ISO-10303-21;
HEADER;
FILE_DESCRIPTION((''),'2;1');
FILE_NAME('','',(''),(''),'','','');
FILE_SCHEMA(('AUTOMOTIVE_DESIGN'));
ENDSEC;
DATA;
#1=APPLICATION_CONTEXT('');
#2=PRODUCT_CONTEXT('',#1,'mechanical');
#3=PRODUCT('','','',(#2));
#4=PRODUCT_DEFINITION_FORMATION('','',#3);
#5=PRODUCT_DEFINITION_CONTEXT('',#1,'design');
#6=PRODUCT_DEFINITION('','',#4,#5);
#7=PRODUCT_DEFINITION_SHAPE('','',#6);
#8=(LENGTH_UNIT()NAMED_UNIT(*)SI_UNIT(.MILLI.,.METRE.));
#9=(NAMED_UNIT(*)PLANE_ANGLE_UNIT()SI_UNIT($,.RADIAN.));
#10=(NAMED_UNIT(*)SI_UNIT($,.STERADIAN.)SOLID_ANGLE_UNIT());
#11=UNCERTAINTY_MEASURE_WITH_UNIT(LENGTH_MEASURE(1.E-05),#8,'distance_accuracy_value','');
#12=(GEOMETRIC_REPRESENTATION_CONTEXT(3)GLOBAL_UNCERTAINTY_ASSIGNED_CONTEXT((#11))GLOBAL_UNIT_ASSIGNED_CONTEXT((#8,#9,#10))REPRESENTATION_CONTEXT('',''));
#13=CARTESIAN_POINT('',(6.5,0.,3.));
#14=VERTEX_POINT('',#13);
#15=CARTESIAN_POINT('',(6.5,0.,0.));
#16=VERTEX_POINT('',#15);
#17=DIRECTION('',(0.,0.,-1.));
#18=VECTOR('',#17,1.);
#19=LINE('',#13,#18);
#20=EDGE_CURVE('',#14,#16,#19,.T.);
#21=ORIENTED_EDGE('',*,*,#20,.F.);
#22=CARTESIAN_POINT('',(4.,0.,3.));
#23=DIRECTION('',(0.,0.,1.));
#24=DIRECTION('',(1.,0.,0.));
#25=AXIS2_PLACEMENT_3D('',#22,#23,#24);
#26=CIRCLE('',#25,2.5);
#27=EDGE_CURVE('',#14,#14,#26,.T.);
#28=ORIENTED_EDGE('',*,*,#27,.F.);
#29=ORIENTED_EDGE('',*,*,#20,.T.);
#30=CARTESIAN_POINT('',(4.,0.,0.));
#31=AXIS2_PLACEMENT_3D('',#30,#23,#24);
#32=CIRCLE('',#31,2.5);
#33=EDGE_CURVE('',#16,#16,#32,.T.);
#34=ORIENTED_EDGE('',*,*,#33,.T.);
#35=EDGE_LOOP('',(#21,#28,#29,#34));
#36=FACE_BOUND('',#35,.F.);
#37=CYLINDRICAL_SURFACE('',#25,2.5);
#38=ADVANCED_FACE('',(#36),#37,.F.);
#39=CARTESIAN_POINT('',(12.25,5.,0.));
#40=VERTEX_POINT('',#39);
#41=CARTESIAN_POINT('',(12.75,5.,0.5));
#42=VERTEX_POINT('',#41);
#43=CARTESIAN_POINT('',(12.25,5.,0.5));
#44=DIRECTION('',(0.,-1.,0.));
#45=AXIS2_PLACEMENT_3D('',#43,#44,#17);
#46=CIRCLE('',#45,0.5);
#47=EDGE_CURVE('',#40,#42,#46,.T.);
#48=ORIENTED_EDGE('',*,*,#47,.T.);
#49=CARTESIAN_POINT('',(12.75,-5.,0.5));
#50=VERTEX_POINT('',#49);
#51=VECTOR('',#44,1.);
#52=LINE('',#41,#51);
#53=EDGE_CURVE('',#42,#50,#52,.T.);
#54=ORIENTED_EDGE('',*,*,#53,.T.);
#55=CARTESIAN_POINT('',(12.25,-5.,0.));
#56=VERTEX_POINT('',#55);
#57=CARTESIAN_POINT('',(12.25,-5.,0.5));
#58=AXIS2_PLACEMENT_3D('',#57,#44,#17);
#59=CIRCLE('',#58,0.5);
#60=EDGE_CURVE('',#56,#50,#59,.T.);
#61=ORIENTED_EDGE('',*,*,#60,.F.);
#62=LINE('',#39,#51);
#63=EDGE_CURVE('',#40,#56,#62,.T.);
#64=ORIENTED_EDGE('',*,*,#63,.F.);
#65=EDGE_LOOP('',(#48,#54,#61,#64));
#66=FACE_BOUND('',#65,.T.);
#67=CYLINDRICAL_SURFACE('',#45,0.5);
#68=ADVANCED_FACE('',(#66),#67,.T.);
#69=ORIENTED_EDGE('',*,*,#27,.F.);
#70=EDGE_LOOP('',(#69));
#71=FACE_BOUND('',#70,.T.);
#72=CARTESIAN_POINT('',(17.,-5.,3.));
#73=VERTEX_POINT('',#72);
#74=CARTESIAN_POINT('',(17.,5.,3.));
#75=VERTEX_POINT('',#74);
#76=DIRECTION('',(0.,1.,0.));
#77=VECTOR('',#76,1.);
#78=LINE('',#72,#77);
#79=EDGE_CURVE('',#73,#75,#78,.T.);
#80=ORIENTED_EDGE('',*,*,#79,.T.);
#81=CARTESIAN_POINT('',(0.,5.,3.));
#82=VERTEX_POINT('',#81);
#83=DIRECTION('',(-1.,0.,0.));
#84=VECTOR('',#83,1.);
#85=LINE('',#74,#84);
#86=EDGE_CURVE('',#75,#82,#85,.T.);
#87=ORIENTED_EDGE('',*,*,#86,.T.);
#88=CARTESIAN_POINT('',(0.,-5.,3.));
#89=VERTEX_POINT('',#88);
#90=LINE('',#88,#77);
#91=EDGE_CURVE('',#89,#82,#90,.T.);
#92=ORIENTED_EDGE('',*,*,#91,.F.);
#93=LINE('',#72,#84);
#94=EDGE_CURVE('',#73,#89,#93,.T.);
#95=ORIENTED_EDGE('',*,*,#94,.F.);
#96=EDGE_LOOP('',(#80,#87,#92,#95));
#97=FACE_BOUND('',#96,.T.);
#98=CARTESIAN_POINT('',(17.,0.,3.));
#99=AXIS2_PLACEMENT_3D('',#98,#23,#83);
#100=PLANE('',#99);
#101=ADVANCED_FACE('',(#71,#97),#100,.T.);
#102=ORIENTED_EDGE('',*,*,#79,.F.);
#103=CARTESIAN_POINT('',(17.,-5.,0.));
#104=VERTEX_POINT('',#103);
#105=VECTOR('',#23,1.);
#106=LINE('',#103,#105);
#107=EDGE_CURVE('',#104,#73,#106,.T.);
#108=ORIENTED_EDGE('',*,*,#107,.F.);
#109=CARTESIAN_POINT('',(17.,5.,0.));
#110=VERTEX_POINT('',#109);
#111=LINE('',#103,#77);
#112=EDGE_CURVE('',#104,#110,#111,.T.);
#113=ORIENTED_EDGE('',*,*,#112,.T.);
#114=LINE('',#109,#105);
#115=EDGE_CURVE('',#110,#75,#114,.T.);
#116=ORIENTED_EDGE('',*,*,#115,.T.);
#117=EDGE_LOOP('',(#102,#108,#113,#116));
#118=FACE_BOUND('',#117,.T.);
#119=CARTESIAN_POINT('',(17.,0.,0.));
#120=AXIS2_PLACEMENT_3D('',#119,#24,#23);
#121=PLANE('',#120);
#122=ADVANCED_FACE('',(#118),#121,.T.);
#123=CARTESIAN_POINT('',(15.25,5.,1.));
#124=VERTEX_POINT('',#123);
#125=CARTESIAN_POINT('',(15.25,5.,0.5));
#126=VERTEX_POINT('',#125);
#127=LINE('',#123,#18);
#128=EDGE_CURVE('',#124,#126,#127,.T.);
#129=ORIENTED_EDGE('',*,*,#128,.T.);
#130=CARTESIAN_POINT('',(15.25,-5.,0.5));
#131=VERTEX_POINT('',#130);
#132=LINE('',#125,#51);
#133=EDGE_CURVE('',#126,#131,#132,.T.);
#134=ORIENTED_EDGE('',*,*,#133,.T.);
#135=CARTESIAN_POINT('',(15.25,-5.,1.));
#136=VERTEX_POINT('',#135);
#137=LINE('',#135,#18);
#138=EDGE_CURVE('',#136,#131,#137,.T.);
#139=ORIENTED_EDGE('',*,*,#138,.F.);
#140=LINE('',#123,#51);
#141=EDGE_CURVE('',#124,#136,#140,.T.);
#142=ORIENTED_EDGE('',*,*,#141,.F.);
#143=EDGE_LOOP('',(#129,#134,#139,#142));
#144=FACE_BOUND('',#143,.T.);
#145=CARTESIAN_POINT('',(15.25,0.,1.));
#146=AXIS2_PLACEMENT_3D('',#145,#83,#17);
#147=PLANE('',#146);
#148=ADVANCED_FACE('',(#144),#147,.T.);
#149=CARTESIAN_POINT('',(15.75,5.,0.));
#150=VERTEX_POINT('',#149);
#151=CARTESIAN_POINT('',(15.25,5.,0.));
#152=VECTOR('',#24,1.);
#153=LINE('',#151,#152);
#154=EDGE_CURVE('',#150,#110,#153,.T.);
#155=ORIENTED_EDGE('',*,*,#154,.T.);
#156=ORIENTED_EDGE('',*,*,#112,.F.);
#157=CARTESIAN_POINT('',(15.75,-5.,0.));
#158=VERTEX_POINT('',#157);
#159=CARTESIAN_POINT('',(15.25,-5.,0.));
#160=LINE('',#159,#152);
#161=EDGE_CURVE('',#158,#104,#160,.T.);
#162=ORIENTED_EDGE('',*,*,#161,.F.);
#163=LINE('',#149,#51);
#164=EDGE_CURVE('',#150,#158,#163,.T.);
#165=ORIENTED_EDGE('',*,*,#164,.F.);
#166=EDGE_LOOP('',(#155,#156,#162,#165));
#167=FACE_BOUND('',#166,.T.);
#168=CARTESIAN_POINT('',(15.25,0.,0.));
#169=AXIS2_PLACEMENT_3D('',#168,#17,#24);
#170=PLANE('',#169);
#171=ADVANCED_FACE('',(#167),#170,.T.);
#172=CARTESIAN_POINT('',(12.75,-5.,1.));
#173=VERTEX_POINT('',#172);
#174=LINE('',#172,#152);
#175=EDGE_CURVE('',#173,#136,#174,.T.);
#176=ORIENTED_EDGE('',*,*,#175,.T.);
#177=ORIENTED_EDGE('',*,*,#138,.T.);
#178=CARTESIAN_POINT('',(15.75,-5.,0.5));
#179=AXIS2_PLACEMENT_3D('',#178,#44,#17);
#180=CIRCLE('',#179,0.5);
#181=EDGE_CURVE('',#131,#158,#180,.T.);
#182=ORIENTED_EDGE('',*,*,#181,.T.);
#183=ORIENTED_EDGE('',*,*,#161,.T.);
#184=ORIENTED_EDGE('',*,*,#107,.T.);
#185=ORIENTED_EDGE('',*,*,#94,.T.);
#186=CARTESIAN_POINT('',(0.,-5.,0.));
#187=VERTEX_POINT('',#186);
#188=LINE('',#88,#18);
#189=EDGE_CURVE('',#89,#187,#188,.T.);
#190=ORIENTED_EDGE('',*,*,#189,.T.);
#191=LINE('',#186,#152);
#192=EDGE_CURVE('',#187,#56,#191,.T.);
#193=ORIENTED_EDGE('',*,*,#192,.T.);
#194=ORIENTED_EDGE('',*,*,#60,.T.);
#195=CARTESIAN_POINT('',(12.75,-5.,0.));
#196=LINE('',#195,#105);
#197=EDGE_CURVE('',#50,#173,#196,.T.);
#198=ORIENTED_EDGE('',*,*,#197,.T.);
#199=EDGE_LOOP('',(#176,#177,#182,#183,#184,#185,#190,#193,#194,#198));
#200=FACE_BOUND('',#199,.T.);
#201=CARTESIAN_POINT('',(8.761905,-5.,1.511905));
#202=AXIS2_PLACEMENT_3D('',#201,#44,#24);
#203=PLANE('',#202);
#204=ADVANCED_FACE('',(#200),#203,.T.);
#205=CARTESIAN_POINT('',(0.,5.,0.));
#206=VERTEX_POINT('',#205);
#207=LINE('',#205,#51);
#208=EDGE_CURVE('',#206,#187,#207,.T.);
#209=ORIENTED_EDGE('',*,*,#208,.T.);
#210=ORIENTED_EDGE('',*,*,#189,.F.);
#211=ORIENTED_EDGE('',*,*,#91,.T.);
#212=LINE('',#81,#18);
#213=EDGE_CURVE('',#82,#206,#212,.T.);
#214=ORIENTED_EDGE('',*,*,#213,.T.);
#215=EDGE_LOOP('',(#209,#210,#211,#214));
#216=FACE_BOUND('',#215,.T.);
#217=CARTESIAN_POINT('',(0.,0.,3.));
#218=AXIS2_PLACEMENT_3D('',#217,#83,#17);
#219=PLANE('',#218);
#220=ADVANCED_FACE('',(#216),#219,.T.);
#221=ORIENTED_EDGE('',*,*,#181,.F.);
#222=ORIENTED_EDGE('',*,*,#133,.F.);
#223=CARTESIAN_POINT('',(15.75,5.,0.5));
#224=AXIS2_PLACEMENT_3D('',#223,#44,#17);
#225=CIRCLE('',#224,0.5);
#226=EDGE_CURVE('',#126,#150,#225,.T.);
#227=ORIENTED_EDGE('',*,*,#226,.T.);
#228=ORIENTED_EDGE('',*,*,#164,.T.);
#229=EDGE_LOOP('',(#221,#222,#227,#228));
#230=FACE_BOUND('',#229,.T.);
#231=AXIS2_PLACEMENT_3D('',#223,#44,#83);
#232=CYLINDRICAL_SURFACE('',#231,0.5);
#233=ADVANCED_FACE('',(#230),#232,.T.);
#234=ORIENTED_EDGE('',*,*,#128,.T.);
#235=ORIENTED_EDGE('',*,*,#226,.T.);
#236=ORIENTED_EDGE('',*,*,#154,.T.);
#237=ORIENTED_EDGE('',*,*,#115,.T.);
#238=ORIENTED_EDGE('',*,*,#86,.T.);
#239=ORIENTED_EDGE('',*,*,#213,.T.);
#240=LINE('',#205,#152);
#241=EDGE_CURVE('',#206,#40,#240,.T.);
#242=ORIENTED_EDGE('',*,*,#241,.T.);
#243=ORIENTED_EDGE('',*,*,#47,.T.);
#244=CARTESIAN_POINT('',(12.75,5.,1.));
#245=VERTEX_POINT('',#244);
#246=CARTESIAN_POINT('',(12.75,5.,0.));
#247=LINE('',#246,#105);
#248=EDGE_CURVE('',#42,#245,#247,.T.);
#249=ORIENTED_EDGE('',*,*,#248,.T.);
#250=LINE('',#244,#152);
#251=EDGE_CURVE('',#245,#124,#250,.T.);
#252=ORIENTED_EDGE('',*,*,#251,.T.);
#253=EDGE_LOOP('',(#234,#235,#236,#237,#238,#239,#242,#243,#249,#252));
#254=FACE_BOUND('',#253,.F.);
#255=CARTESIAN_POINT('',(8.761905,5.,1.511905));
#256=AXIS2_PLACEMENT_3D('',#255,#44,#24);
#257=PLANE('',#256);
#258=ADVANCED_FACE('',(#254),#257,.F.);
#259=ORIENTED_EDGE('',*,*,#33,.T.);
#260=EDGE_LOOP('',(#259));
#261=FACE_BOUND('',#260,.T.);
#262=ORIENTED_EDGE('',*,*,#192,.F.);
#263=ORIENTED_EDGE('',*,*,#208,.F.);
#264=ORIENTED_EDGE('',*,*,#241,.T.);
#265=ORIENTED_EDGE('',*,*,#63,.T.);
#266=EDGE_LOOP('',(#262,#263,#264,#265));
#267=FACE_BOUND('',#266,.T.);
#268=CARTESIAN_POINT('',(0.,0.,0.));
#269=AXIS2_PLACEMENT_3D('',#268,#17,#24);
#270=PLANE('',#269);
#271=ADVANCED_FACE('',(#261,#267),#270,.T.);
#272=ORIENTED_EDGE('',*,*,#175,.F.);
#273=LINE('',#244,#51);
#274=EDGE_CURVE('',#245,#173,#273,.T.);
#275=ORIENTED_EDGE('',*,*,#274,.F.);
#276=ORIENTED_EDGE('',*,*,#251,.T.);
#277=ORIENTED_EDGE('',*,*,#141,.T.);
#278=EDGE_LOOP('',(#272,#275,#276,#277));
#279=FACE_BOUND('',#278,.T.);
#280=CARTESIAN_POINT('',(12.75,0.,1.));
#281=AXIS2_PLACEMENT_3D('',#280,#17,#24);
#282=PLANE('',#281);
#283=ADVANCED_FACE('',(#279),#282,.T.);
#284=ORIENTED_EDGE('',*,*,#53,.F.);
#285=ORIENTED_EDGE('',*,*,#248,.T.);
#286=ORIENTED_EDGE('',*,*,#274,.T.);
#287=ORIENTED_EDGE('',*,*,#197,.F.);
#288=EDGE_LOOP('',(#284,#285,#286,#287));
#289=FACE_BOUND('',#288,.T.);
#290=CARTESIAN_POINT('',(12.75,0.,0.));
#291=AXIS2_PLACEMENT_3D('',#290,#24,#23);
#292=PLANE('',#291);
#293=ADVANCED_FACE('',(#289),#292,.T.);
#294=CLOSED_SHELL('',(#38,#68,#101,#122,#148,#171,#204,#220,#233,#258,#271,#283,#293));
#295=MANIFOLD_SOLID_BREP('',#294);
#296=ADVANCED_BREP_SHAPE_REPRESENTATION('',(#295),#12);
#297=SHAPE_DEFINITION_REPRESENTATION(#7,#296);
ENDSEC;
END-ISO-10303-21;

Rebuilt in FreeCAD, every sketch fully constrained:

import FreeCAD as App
import Part
import Sketcher
Q = App.Units.Quantity


def edges_at(feature, points):
    """Names of the edges that pass closest to the given points."""
    edges = feature.Shape.Edges
    near = lambda p: min(range(len(edges)), key=lambda i: edges[i].distToShape(Part.Vertex(*p))[0])
    return sorted({f"Edge{near(p) + 1}" for p in points})


def add_polygon(sketch, points):
    """Adds a closed chain of lines whose ends are joined by coincident constraints."""
    first, n = sketch.GeometryCount, len(points)
    for a, b in zip(points, points[1:] + points[:1]):
        sketch.addGeometry(Part.LineSegment(App.Vector(*a, 0), App.Vector(*b, 0)), False)
    for i in range(n):
        sketch.addConstraint(Sketcher.Constraint("Coincident", first + i, 2, first + (i + 1) % n, 1))

doc = App.newDocument("Part")
body = doc.addObject("PartDesign::Body", "Body")

# Sketch on XZ plane
sketch1 = body.newObject("Sketcher::SketchObject", "Sketch")
sketch1.AttachmentSupport = (doc.getObject("XZ_Plane"), [""])
sketch1.MapMode = "FlatFace"
add_polygon(sketch1, [(0, 3), (0, 0), (12.8, 0), (12.8, 1), (15.2, 1), (15.2, 0), (17, 0), (17, 3)])  # lines 0-7
sketch1.addConstraint(Sketcher.Constraint("Vertical", 0))
sketch1.addConstraint(Sketcher.Constraint("Horizontal", 1))
sketch1.addConstraint(Sketcher.Constraint("Vertical", 2))
sketch1.addConstraint(Sketcher.Constraint("Horizontal", 3))
sketch1.addConstraint(Sketcher.Constraint("Vertical", 4))
sketch1.addConstraint(Sketcher.Constraint("Horizontal", 5))
sketch1.addConstraint(Sketcher.Constraint("Vertical", 6))
sketch1.addConstraint(Sketcher.Constraint("Horizontal", 7))
sketch1.addConstraint(Sketcher.Constraint("Coincident", 0, 2, -1, 1))
sketch1.addConstraint(Sketcher.Constraint("PointOnObject", 4, 2, -1))
sketch1.addConstraint(Sketcher.Constraint("DistanceX", 7, 2, 7, 1, Q("17 mm")))
sketch1.addConstraint(Sketcher.Constraint("DistanceY", 0, 2, 0, 1, Q("3 mm")))
sketch1.addConstraint(Sketcher.Constraint("DistanceY", 2, 1, 2, 2, Q("1 mm")))
sketch1.addConstraint(Sketcher.Constraint("DistanceX", 3, 1, 3, 2, Q("2.5 mm")))
sketch1.addConstraint(Sketcher.Constraint("DistanceX", 1, 1, 1, 2, Q("12.75 mm")))
pad1 = body.newObject("PartDesign::Pad", "Pad")
pad1.Profile = sketch1
pad1.Type = "TwoLengths"
pad1.Length = 5
pad1.Length2 = 5

# Sketch on XY plane
sketch2 = body.newObject("Sketcher::SketchObject", "Sketch001")
sketch2.AttachmentSupport = (doc.getObject("XY_Plane"), [""])
sketch2.MapMode = "FlatFace"
sketch2.AttachmentOffset = App.Placement(App.Vector(0, 0, 3), App.Rotation())
sketch2.addGeometry(Part.Circle(App.Vector(4, 0, 0), App.Vector(0, 0, 1), 2.5), False)
sketch2.addConstraint(Sketcher.Constraint("PointOnObject", 0, 3, -1))
sketch2.addConstraint(Sketcher.Constraint("Diameter", 0, Q("5 mm")))
sketch2.addConstraint(Sketcher.Constraint("DistanceX", -1, 1, 0, 3, Q("4 mm")))
pocket1 = body.newObject("PartDesign::Pocket", "Pocket")
pocket1.Profile = sketch2
pocket1.Type = "ThroughAll"
doc.recompute()

fillet = body.newObject("PartDesign::Fillet", "Fillet")
fillet.Base = (pocket1, edges_at(pocket1, [(12.75, 0, 0), (15.25, 0, 0)]))
fillet.Radius = 0.5

doc.recompute()
